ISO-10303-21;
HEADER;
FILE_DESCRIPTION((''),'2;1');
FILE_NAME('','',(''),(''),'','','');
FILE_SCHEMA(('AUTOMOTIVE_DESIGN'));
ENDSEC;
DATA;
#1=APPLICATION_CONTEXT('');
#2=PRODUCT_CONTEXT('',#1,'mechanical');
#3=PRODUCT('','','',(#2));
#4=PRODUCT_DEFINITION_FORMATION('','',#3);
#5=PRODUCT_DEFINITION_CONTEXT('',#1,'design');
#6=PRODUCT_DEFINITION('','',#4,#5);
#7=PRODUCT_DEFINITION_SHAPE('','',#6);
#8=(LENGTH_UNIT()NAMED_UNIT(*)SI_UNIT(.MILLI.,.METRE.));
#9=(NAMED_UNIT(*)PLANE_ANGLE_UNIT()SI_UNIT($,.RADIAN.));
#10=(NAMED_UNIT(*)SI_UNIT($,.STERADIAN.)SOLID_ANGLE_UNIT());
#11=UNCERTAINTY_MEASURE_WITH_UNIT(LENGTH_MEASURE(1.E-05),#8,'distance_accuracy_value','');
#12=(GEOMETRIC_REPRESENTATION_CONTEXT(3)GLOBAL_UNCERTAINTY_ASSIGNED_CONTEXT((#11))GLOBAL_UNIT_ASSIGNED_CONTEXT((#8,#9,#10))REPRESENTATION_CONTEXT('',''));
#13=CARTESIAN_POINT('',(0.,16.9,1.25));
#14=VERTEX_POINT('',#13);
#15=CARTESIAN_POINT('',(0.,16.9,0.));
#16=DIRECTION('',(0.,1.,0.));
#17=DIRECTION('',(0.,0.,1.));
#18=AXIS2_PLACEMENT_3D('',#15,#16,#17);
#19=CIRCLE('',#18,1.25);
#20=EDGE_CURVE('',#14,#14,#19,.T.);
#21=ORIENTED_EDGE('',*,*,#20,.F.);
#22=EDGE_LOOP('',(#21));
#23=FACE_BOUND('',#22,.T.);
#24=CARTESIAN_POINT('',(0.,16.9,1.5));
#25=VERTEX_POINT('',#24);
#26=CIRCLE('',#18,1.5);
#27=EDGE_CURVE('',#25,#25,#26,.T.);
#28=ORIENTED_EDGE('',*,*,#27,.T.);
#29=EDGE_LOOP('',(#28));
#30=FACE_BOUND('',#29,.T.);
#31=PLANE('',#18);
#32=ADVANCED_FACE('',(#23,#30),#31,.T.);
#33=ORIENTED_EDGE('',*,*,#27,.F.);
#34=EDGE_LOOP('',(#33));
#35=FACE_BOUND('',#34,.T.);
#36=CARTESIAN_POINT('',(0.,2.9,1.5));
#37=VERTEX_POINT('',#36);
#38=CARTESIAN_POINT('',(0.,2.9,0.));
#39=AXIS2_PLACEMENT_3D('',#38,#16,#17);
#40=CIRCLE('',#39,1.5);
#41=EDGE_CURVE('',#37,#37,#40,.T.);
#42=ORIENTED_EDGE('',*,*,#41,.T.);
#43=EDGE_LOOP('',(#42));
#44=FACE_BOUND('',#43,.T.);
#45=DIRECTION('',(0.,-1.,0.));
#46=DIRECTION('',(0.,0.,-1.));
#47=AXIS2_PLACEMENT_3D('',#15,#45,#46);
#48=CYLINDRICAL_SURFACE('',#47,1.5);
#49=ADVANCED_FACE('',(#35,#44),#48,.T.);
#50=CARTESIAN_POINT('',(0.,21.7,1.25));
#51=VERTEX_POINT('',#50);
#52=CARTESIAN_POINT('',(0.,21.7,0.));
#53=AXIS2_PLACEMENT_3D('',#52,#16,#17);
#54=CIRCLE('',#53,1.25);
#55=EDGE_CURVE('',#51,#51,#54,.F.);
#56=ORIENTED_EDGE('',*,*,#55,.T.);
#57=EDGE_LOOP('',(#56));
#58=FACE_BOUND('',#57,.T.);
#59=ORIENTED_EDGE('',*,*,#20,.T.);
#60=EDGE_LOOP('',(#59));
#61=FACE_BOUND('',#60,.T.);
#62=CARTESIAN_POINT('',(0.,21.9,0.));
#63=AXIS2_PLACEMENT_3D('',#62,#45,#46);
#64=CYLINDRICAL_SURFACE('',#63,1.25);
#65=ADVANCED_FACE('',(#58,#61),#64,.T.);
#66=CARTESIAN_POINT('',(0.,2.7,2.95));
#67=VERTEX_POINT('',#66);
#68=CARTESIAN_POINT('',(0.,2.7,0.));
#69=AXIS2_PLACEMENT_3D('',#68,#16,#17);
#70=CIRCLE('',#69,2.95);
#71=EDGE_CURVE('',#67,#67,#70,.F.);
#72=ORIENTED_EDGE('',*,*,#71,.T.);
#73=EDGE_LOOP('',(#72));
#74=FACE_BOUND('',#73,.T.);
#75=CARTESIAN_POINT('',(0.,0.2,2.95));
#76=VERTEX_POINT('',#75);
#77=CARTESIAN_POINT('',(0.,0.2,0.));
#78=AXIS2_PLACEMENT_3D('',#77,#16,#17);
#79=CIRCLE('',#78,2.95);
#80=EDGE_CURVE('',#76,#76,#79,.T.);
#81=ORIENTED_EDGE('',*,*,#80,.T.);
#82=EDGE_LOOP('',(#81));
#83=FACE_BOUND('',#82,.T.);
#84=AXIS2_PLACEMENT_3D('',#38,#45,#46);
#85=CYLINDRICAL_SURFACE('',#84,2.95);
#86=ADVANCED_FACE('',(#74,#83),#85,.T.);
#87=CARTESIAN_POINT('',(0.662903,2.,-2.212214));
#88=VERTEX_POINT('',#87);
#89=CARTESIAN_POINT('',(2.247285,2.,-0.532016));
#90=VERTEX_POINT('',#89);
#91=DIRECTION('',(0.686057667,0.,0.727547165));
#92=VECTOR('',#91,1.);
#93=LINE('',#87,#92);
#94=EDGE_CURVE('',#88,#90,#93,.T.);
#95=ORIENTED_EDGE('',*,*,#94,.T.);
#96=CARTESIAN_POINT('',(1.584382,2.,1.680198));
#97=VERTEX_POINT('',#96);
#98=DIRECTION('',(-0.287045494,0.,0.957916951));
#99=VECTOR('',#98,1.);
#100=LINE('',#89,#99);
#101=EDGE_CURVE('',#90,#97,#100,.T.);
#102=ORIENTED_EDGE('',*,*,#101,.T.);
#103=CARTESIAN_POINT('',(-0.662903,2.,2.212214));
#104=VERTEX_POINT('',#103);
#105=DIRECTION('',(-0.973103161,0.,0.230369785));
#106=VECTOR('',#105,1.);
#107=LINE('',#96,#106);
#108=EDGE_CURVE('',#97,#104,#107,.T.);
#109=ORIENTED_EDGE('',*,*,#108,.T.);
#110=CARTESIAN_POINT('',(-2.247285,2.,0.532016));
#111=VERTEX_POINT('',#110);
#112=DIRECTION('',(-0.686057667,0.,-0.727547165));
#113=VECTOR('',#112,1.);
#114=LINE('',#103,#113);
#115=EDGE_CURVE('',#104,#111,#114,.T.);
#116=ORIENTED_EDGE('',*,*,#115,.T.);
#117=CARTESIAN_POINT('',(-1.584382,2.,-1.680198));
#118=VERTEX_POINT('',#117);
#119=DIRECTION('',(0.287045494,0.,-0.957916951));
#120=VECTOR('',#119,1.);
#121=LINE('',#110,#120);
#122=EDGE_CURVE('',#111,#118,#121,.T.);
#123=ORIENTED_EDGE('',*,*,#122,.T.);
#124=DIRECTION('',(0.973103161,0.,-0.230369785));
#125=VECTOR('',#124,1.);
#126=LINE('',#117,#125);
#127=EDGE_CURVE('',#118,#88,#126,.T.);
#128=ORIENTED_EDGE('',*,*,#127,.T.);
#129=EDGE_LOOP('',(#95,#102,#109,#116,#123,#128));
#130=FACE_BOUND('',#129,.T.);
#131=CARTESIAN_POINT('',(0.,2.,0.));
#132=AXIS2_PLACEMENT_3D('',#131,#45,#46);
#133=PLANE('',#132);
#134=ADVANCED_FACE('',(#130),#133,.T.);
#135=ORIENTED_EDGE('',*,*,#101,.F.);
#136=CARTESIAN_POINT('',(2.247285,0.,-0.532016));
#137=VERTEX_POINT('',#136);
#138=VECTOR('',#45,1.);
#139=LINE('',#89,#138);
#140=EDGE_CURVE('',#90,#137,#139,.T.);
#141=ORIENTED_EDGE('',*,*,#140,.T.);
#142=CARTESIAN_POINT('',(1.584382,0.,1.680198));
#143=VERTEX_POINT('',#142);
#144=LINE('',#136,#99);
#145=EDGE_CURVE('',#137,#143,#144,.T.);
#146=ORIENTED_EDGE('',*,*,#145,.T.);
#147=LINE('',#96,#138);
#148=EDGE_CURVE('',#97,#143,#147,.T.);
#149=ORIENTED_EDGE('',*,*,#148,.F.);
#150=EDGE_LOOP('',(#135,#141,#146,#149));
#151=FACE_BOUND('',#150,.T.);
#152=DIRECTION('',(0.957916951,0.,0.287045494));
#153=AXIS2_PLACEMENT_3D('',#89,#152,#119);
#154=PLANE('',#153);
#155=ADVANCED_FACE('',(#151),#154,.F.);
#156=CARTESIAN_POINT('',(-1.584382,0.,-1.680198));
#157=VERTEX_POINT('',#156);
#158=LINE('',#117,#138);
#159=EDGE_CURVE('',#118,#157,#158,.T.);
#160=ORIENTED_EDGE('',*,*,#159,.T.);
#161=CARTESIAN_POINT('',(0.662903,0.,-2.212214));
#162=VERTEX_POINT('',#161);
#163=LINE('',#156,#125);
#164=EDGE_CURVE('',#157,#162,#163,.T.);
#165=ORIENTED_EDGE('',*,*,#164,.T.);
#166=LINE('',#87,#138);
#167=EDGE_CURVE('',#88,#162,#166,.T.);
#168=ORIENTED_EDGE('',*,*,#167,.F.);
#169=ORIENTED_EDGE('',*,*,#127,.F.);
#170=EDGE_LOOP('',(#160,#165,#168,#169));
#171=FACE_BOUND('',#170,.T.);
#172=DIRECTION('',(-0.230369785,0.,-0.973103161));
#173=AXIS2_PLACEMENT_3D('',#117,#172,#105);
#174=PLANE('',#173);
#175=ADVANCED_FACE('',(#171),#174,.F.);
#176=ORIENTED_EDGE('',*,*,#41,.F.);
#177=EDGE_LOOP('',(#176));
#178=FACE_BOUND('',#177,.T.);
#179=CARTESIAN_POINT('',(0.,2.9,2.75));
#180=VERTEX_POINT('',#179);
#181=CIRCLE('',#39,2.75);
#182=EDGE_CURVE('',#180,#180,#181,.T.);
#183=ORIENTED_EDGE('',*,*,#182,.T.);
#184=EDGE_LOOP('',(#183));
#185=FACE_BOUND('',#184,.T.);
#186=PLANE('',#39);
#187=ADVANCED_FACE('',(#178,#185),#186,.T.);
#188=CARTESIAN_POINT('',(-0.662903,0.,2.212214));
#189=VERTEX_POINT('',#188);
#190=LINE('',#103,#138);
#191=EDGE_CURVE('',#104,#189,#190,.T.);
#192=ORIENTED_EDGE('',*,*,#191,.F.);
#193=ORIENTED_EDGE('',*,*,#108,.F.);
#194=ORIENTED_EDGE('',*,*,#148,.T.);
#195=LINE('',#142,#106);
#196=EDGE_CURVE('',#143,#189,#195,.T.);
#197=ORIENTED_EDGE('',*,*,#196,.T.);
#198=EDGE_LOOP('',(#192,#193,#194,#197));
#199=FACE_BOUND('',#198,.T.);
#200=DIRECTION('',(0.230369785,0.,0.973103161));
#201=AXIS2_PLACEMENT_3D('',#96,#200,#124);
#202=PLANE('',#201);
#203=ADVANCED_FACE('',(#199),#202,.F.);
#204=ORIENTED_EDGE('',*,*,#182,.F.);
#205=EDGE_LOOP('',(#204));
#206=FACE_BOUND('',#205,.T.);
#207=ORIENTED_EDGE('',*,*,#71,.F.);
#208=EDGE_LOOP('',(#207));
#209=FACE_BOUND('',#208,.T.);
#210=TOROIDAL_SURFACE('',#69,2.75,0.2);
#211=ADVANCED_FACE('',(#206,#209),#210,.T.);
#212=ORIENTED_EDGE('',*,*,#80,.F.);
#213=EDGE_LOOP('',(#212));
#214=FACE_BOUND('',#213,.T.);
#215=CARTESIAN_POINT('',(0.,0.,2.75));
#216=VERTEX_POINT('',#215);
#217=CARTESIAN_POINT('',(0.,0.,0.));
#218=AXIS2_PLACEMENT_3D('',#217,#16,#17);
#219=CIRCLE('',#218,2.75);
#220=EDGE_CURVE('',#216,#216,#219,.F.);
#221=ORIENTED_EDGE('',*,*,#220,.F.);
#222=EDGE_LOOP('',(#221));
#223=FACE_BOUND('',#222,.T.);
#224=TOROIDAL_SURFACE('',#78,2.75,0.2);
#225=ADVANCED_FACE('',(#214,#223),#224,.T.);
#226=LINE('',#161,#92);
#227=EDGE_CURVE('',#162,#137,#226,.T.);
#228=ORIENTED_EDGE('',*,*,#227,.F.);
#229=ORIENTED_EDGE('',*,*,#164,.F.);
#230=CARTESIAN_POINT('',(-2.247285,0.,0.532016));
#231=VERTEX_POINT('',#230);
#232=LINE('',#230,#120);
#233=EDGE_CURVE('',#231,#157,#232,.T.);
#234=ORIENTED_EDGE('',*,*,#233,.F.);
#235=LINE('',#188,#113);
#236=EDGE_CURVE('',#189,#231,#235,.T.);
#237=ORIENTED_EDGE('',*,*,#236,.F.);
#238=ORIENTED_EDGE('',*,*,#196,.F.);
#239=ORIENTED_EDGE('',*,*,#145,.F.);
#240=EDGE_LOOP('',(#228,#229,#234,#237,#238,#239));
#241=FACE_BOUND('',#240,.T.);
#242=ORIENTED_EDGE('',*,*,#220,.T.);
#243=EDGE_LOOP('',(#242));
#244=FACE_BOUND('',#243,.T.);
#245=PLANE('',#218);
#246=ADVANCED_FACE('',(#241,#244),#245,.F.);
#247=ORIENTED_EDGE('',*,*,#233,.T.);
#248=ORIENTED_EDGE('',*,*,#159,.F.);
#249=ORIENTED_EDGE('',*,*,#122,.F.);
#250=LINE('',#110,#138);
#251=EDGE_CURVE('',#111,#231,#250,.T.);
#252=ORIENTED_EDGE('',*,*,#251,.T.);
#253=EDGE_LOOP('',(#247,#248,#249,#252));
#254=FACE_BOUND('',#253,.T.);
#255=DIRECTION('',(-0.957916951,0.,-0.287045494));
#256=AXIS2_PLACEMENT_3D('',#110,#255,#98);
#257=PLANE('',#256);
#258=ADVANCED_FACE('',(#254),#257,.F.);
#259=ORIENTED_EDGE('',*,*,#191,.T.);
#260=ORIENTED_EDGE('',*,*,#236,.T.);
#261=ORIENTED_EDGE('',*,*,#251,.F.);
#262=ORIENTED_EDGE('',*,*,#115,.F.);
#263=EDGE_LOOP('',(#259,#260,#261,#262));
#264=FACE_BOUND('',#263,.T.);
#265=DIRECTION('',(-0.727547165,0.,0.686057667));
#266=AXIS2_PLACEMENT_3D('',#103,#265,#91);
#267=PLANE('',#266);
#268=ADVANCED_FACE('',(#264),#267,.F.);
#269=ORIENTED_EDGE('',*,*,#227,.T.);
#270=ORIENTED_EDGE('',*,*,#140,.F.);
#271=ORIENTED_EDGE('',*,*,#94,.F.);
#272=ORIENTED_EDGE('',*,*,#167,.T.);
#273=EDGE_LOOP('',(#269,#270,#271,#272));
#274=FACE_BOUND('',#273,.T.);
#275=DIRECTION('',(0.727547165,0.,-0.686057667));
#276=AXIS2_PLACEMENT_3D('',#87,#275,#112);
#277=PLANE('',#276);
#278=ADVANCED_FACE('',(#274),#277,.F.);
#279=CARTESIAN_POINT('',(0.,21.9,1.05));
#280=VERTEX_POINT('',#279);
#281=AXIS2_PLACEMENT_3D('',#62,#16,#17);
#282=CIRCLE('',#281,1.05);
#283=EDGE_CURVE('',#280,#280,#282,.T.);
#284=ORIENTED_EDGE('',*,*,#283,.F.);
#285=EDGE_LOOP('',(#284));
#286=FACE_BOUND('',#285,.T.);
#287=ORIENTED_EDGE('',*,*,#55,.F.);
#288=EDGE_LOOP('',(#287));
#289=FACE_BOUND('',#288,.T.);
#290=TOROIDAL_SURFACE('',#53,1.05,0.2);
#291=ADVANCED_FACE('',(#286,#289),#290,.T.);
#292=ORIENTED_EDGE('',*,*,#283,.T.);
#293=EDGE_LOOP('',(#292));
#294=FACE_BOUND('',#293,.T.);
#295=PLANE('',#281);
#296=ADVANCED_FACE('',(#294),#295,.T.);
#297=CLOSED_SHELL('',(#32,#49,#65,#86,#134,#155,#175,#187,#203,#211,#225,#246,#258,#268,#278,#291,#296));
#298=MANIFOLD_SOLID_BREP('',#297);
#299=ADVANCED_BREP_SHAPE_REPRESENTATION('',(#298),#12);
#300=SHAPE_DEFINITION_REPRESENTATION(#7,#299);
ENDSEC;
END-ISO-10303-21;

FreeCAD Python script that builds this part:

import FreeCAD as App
import Part
import Sketcher


def edges_at(feature, points):
    """Names of the edges that pass closest to the given points."""
    edges = feature.Shape.Edges
    near = lambda p: min(range(len(edges)), key=lambda i: edges[i].distToShape(Part.Vertex(*p))[0])
    return sorted({f"Edge{near(p) + 1}" for p in points})


def add_polygon(sketch, points):
    """Adds a closed chain of lines whose ends are joined by coincident constraints."""
    first, n = sketch.GeometryCount, len(points)
    for a, b in zip(points, points[1:] + points[:1]):
        sketch.addGeometry(Part.LineSegment(App.Vector(*a, 0), App.Vector(*b, 0)), False)
    for i in range(n):
        sketch.addConstraint(Sketcher.Constraint("Coincident", first + i, 2, first + (i + 1) % n, 1))

doc = App.newDocument("Part")
body = doc.addObject("PartDesign::Body", "Body")

sketch1 = body.newObject("Sketcher::SketchObject", "Sketch")
sketch1.AttachmentSupport = (doc.getObject("XZ_Plane"), [""])
sketch1.MapMode = "FlatFace"
sketch1.addGeometry(Part.Circle(App.Vector(0, 0, 0), App.Vector(0, 0, 1), 3), False)
sketch1.addConstraint(Sketcher.Constraint("Coincident", 0, 3, -1, 1))
sketch1.addConstraint(Sketcher.Constraint("Diameter", 0, 5.9))
pad1 = body.newObject("PartDesign::Pad", "Pad")
pad1.Profile = sketch1
pad1.Length = 2.9
pad1.Reversed = True

sketch2 = body.newObject("Sketcher::SketchObject", "Sketch001")
sketch2.AttachmentSupport = (doc.getObject("XZ_Plane"), [""])
sketch2.MapMode = "FlatFace"
sketch2.AttachmentOffset = App.Placement(App.Vector(0, 0, -2.9), App.Rotation())
sketch2.addGeometry(Part.Circle(App.Vector(0, 0, 0), App.Vector(0, 0, 1), 1.5), False)
sketch2.addConstraint(Sketcher.Constraint("Coincident", 0, 3, -1, 1))
sketch2.addConstraint(Sketcher.Constraint("Diameter", 0, 3.0))
pad2 = body.newObject("PartDesign::Pad", "Pad001")
pad2.Profile = sketch2
pad2.Length = 14
pad2.Reversed = True

sketch3 = body.newObject("Sketcher::SketchObject", "Sketch002")
sketch3.AttachmentSupport = (doc.getObject("XZ_Plane"), [""])
sketch3.MapMode = "FlatFace"
sketch3.AttachmentOffset = App.Placement(App.Vector(0, 0, -16.9), App.Rotation())
sketch3.addGeometry(Part.Circle(App.Vector(0, 0, 0), App.Vector(0, 0, 1), 1.2), False)
sketch3.addConstraint(Sketcher.Constraint("Coincident", 0, 3, -1, 1))
sketch3.addConstraint(Sketcher.Constraint("Diameter", 0, 2.5))
pad3 = body.newObject("PartDesign::Pad", "Pad002")
pad3.Profile = sketch3
pad3.Length = 5
pad3.Reversed = True

sketch4 = body.newObject("Sketcher::SketchObject", "Sketch003")
sketch4.AttachmentSupport = (doc.getObject("XZ_Plane"), [""])
sketch4.MapMode = "FlatFace"
add_polygon(sketch4, [(2.2, -0.5), (1.6, 1.7), (-0.7, 2.2), (-2.2, 0.5), (-1.6, -1.7), (0.7, -2.2)])
sketch4.addConstraint(Sketcher.Constraint("Symmetric", 0, 2, 3, 2, -1, 1))
sketch4.addConstraint(Sketcher.Constraint("Symmetric", 1, 2, 4, 2, -1, 1))
sketch4.addConstraint(Sketcher.Constraint("Symmetric", 2, 2, 5, 2, -1, 1))
sketch4.addConstraint(Sketcher.Constraint("Equal", 0, 1))
sketch4.addConstraint(Sketcher.Constraint("Equal", 1, 2))
sketch4.addConstraint(Sketcher.Constraint("Distance", 0, 2.309401))
sketch4.addConstraint(Sketcher.Constraint("DistanceY", -1, 1, 0, 2, 1.680198))
sketch4.addConstraint(Sketcher.Constraint("DistanceY", 2, 2, 1, 2, 1.680198))
sketch4.addConstraint(Sketcher.Constraint("DistanceY", 2, 2, 0, 2, 1.148182))
pocket1 = body.newObject("PartDesign::Pocket", "Pocket")
pocket1.Profile = sketch4
pocket1.Length = 2
doc.recompute()

fillet = body.newObject("PartDesign::Fillet", "Fillet")
fillet.Base = (pocket1, edges_at(pocket1, [(0, 21.9, -1.25), (0, 0, -2.95), (0, 2.9, -2.95)]))
fillet.Radius = 0.2

doc.recompute()
